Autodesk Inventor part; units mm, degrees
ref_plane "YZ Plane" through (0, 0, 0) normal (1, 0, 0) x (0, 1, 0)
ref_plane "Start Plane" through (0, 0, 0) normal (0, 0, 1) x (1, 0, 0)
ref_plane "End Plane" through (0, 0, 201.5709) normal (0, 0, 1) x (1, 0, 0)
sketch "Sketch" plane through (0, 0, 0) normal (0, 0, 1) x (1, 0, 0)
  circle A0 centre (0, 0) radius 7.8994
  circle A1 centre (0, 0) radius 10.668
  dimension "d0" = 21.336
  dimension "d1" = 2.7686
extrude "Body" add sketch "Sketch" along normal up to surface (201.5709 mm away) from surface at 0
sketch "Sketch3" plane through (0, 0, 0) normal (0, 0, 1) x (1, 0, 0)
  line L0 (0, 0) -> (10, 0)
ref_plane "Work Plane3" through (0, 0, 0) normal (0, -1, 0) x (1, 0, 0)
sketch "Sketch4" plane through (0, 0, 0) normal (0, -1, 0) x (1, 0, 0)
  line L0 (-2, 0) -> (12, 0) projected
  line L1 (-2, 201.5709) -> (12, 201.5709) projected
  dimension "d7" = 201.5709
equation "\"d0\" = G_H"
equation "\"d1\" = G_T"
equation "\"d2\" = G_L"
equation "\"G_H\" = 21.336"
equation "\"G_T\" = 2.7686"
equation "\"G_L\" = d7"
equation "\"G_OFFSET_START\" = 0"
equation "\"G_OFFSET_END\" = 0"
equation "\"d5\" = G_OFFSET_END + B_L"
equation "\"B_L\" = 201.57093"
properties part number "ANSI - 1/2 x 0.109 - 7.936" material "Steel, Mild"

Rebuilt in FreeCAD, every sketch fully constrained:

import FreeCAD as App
import Part
import Sketcher
Q = App.Units.Quantity

doc = App.newDocument("Part")
body = doc.addObject("PartDesign::Body", "Body")

# Sketch on XY plane
sketch1 = body.newObject("Sketcher::SketchObject", "Sketch")
sketch1.AttachmentSupport = (doc.getObject("XY_Plane"), [""])
sketch1.MapMode = "FlatFace"
sketch1.addGeometry(Part.Circle(App.Vector(0, 0, 0), App.Vector(0, 0, 1), 11), False)
sketch1.addGeometry(Part.Circle(App.Vector(0, 0, 0), App.Vector(0, 0, 1), 8), False)
sketch1.addConstraint(Sketcher.Constraint("Coincident", 0, 3, -1, 1))
sketch1.addConstraint(Sketcher.Constraint("Coincident", 1, 3, -1, 1))
sketch1.addConstraint(Sketcher.Constraint("Diameter", 0, Q("0.84 in")))
sketch1.addConstraint(Sketcher.Constraint("Diameter", 1, Q("0.622 in")))
pad1 = body.newObject("PartDesign::Pad", "Pad")
pad1.Profile = sketch1
pad1.Length = 201.5709

doc.recompute()
